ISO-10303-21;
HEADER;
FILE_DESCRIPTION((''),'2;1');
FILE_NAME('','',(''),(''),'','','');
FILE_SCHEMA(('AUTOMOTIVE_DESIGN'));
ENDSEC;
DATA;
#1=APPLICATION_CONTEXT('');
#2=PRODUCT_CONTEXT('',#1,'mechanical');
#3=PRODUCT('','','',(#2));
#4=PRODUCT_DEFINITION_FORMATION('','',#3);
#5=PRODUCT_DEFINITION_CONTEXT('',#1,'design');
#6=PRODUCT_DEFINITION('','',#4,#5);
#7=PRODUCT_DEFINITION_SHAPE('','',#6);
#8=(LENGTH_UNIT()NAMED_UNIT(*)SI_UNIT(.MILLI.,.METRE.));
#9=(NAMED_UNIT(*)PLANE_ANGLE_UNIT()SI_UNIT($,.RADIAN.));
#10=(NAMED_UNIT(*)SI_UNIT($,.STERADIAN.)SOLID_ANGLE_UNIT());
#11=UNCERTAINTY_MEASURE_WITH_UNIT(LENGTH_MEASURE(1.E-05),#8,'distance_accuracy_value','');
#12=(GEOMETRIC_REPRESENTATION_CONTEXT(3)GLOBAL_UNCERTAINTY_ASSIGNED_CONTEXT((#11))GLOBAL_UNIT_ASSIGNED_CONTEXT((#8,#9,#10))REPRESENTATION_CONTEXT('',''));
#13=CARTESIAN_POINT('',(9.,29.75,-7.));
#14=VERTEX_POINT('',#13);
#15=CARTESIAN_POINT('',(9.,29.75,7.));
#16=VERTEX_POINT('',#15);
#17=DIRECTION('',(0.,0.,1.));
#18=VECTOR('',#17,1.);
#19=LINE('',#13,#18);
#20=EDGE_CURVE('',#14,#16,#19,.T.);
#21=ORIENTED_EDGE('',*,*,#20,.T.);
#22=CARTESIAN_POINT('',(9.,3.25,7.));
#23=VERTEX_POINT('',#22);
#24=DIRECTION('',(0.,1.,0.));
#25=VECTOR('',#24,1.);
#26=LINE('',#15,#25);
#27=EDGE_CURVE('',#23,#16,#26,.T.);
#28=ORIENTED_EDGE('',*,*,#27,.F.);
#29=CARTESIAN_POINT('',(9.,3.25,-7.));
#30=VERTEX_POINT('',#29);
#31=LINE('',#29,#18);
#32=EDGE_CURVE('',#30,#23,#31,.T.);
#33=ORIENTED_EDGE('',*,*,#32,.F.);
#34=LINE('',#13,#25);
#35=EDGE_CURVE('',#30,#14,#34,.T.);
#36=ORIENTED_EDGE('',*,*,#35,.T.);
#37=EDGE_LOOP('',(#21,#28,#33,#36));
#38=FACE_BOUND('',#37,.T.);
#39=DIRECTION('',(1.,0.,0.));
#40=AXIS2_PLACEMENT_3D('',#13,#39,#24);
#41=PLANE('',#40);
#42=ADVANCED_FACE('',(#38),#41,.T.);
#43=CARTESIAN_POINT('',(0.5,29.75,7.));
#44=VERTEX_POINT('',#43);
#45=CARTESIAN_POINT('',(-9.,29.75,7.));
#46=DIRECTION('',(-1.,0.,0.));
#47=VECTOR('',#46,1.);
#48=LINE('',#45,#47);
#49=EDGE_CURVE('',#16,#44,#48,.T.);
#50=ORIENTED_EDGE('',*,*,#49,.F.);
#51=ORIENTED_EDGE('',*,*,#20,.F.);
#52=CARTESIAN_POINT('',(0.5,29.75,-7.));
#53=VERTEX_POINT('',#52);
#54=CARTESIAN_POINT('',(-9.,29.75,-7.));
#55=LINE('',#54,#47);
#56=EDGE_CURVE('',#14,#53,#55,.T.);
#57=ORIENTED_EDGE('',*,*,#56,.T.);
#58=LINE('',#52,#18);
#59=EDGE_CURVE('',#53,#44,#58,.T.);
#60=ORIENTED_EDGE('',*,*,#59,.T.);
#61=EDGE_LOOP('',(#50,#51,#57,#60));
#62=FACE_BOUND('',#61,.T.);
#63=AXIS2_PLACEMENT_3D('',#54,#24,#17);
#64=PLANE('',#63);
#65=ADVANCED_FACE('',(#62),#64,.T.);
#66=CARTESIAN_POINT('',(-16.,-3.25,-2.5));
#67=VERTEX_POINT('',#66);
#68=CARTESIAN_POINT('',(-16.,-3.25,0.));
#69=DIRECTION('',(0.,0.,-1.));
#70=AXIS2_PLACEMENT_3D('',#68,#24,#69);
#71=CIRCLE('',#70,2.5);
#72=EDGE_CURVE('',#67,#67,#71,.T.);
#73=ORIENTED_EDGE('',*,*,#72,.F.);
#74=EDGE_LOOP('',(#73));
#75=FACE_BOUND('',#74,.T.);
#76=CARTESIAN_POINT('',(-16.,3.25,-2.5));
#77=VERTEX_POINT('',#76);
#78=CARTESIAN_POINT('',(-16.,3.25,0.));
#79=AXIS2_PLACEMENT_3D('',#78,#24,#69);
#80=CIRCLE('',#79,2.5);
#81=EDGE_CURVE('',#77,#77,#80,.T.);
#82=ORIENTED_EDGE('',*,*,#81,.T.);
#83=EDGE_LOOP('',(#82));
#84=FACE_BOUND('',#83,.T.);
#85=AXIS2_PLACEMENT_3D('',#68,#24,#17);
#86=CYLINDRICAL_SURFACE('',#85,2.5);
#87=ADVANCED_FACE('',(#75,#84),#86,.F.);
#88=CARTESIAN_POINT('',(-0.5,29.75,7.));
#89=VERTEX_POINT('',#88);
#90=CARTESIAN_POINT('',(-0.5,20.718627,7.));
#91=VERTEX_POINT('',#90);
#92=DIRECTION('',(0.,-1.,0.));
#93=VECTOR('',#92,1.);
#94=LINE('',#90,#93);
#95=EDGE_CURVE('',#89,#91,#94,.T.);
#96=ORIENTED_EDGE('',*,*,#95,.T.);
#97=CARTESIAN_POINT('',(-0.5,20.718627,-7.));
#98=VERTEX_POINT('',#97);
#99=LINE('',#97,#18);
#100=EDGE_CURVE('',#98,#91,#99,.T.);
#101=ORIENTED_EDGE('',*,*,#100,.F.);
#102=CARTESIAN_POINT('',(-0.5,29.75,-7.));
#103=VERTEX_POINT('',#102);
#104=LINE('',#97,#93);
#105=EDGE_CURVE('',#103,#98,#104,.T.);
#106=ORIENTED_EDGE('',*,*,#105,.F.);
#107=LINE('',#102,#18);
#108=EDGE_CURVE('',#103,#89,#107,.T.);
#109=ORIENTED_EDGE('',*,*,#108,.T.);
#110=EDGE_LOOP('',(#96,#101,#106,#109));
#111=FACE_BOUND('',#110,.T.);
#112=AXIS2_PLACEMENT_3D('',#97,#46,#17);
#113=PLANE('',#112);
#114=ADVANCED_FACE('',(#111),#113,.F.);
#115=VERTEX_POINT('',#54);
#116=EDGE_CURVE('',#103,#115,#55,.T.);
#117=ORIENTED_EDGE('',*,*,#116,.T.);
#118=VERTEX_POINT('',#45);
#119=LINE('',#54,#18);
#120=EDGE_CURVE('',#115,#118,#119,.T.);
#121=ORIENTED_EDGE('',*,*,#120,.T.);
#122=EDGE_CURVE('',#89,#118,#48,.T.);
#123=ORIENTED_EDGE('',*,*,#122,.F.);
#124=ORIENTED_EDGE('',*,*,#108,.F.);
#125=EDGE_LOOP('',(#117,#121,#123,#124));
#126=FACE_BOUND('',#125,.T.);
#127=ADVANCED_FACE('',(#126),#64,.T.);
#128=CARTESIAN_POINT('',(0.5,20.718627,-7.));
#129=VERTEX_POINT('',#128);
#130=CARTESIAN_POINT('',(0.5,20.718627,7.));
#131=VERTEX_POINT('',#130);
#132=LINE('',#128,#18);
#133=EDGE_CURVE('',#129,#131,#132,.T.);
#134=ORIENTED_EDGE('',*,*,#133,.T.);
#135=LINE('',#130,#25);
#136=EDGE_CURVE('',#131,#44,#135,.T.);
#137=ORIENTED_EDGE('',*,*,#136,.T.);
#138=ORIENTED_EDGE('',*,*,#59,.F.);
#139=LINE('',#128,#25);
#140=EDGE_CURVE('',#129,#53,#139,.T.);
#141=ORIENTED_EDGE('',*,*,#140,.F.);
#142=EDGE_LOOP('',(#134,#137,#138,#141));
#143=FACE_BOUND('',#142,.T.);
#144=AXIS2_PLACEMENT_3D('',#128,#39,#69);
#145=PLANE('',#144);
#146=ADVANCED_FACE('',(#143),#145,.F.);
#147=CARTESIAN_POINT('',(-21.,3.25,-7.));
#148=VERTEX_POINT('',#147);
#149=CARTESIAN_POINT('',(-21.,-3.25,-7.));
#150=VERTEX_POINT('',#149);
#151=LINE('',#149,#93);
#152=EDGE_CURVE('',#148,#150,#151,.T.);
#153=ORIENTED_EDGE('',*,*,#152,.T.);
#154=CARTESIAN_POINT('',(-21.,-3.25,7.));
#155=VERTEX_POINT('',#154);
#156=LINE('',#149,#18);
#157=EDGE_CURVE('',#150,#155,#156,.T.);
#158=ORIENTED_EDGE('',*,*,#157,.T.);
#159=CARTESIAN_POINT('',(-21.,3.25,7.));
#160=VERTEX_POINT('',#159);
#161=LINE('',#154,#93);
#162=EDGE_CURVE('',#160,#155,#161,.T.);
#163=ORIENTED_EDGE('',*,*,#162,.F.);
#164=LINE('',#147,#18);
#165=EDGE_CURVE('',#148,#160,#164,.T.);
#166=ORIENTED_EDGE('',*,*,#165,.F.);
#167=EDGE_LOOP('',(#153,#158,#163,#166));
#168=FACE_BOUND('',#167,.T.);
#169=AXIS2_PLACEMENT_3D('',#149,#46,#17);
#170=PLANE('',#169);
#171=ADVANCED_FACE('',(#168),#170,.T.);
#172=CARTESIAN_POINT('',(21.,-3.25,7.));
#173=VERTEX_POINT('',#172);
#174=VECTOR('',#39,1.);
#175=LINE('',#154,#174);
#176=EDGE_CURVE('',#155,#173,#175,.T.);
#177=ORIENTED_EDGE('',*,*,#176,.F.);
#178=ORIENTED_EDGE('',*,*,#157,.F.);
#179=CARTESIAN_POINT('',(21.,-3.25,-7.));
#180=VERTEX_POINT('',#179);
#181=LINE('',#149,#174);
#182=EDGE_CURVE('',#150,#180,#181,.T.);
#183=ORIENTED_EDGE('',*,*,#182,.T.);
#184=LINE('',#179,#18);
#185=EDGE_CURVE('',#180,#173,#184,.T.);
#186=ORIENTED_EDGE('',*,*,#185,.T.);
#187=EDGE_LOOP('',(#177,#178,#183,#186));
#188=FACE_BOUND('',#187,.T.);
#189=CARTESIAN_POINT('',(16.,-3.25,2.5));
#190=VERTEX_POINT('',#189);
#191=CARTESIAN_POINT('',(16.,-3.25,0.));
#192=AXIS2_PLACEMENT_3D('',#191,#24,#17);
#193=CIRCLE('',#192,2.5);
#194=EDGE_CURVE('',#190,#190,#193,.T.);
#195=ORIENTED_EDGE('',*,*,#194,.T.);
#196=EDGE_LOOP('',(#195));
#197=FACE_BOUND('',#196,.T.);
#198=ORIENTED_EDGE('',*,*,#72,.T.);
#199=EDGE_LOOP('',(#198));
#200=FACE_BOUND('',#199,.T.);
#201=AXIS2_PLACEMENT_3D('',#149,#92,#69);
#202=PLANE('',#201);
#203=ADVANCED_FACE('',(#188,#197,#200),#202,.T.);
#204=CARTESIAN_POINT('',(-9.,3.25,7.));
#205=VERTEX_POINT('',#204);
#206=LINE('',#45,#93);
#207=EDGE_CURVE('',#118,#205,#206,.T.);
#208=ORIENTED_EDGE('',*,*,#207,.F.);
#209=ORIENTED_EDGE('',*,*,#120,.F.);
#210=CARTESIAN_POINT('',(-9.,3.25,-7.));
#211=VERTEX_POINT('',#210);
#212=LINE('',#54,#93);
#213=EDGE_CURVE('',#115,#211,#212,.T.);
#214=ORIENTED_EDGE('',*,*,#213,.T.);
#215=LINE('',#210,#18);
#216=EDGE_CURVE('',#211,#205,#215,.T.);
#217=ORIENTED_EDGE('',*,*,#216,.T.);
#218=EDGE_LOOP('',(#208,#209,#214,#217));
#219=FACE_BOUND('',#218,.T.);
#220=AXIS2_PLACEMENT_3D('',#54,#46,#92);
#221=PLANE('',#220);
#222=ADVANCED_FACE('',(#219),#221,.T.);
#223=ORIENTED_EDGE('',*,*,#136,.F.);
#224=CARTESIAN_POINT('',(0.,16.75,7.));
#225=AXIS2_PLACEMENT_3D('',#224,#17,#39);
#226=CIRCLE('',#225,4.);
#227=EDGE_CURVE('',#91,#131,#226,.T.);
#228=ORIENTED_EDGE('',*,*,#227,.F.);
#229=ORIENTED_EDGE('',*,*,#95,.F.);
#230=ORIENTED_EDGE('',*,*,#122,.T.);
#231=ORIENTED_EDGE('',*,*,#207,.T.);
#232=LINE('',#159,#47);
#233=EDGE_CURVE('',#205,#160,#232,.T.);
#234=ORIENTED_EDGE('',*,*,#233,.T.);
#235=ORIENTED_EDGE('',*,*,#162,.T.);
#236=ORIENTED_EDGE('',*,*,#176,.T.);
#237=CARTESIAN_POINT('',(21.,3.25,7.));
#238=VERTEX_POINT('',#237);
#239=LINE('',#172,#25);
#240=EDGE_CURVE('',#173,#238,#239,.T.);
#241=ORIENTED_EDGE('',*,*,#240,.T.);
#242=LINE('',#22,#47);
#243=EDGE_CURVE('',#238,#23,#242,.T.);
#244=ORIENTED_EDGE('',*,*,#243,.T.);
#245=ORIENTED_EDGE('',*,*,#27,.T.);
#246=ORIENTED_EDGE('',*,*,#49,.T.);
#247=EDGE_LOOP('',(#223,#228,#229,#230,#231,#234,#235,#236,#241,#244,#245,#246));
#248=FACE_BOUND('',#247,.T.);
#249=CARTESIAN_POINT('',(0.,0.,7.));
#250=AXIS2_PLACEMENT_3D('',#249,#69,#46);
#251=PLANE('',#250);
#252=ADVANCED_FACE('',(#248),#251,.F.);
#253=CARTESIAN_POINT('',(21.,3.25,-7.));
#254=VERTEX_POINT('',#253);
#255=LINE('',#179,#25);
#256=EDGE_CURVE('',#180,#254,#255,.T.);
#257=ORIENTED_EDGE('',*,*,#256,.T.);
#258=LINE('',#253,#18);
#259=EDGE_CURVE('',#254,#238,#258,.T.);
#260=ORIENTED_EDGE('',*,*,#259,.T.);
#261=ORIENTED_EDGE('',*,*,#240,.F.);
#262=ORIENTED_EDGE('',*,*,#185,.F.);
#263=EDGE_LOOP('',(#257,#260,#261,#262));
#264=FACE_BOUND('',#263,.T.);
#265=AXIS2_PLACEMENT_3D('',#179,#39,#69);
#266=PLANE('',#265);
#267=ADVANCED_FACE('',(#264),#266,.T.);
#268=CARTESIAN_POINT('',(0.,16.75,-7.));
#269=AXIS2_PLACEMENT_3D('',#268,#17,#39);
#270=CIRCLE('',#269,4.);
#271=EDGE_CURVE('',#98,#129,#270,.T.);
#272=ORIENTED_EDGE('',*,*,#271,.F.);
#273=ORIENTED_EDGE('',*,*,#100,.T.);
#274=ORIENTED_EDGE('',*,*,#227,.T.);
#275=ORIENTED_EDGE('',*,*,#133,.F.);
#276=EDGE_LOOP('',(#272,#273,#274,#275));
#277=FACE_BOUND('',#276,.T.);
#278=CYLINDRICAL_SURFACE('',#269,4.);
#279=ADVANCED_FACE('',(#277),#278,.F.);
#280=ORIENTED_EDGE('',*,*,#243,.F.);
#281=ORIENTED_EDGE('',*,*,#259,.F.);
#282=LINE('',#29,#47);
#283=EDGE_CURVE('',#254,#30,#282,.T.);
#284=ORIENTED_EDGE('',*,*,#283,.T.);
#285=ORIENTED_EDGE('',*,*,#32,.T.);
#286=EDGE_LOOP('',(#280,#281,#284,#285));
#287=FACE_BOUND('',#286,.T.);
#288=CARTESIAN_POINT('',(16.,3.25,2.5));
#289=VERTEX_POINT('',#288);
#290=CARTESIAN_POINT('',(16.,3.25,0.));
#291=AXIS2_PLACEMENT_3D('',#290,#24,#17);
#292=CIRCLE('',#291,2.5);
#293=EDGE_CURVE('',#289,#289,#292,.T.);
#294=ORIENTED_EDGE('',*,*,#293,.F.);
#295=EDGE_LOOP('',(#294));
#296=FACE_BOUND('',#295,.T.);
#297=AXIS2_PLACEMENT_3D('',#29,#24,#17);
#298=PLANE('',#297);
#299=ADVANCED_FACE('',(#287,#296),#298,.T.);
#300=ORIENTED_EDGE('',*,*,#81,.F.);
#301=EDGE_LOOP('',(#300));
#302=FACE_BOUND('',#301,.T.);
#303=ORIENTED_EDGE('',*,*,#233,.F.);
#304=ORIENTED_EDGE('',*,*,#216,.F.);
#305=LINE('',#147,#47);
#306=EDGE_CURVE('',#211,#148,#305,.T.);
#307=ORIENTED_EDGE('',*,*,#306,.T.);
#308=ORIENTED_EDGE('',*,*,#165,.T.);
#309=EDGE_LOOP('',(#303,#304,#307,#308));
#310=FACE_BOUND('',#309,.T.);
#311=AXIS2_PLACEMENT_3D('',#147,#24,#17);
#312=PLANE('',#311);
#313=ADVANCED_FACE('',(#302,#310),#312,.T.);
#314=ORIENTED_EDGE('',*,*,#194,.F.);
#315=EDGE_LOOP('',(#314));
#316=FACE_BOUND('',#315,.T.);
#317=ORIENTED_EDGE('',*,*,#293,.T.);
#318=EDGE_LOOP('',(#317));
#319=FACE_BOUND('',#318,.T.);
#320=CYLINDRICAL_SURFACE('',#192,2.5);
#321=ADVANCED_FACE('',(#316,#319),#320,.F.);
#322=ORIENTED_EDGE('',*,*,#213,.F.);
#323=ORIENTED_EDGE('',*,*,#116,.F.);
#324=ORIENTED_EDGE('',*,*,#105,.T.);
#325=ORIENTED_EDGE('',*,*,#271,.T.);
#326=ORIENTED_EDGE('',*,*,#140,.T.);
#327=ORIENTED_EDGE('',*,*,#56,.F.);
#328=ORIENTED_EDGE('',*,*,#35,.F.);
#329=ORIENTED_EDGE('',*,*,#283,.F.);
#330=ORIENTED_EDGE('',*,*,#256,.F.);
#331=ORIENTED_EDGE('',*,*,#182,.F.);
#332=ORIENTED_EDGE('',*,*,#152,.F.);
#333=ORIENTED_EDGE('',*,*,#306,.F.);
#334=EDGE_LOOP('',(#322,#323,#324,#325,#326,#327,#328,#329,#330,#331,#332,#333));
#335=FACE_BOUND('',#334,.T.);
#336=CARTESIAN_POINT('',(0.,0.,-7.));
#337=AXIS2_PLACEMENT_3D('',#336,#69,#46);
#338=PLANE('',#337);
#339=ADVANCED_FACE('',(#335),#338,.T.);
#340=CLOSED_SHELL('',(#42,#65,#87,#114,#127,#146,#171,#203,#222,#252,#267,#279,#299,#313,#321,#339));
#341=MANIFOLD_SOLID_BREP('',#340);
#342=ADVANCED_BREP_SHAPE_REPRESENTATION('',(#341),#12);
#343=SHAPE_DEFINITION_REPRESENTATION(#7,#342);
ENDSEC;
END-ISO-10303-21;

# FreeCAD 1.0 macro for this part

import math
import FreeCAD as App
import Part
import Sketcher
from FreeCAD import Vector

doc = App.newDocument("Part")
params = doc.addObject("Spreadsheet::Sheet", "Params")
for row, (alias, value) in enumerate([
    ("sketch1_width", "12 mm"),
    ("sketch1_width2", "18 mm"),
    ("sketch1_height", "26.5 mm"),
    ("sketch1_height2", "6.5 mm"),
    ("pad1_length", "7 mm"),
    ("pad1_length2", "7 mm"),
    ("sketch2_radius", "4 mm"),
    ("sketch2_width", "1 mm"),
    ("sketch3_diameter", "5 mm"),
], start=1):
    params.set(f"A{row}", alias)
    params.set(f"B{row}", "=" + value)
    params.setAlias(f"B{row}", alias)

body = doc.addObject("PartDesign::Body", "Body")

# Sketch on XY plane
sketch1 = body.newObject("Sketcher::SketchObject", "Sketch")
sketch1.AttachmentSupport = (doc.getObject("XY_Plane"), [""])
sketch1.MapMode = "FlatFace"
sketch1.addGeometry([
    Part.LineSegment(Vector(21, 3.25, 0), Vector(9, 3.25, 0)),  # 0
    Part.LineSegment(Vector(9, 3.25, 0), Vector(9, 29.75, 0)),  # 1
    Part.LineSegment(Vector(9, 29.75, 0), Vector(-9, 29.75, 0)),  # 2
    Part.LineSegment(Vector(-9, 29.75, 0), Vector(-9, 3.25, 0)),  # 3
    Part.LineSegment(Vector(-9, 3.25, 0), Vector(-21, 3.25, 0)),  # 4
    Part.LineSegment(Vector(-21, 3.25, 0), Vector(-21, -3.25, 0)),  # 5
    Part.LineSegment(Vector(-21, -3.25, 0), Vector(21, -3.25, 0)),  # 6
    Part.LineSegment(Vector(21, -3.25, 0), Vector(21, 3.25, 0)),  # 7
], False)
sketch1.addConstraint([
    Sketcher.Constraint("Coincident", 0, 2, 1, 1),
    Sketcher.Constraint("Coincident", 1, 2, 2, 1),
    Sketcher.Constraint("Coincident", 2, 2, 3, 1),
    Sketcher.Constraint("Coincident", 3, 2, 4, 1),
    Sketcher.Constraint("Coincident", 4, 2, 5, 1),
    Sketcher.Constraint("Coincident", 5, 2, 6, 1),
    Sketcher.Constraint("Coincident", 6, 2, 7, 1),
    Sketcher.Constraint("Coincident", 7, 2, 0, 1),
    Sketcher.Constraint("Horizontal", 0),
    Sketcher.Constraint("Vertical", 1),
    Sketcher.Constraint("Horizontal", 2),
    Sketcher.Constraint("Vertical", 3),
    Sketcher.Constraint("Horizontal", 4),
    Sketcher.Constraint("Vertical", 5),
    Sketcher.Constraint("Horizontal", 6),
    Sketcher.Constraint("Vertical", 7),
    Sketcher.Constraint("Symmetric", 4, 2, 6, 2, -1, 1),
    Sketcher.Constraint("Symmetric", 0, 2, 3, 2, -2),
    Sketcher.Constraint("DistanceX", 0, 2, 0, 1, 12.0),
    Sketcher.Constraint("DistanceX", 2, 2, 2, 1, 18.0),
    Sketcher.Constraint("DistanceY", 1, 1, 1, 2, 26.5),
    Sketcher.Constraint("DistanceY", 5, 2, 5, 1, 6.5),
])
sketch1.setExpression("Constraints[18]", "Params.sketch1_width")
sketch1.setExpression("Constraints[19]", "Params.sketch1_width2")
sketch1.setExpression("Constraints[20]", "Params.sketch1_height")
sketch1.setExpression("Constraints[21]", "Params.sketch1_height2")
pad1 = body.newObject("PartDesign::Pad", "Pad")
pad1.Profile = sketch1
pad1.Type = "TwoLengths"
pad1.setExpression("Length", "Params.pad1_length")
pad1.setExpression("Length2", "Params.pad1_length2")

# Sketch on XY plane
sketch2 = body.newObject("Sketcher::SketchObject", "Sketch001")
sketch2.AttachmentSupport = (doc.getObject("XY_Plane"), [""])
sketch2.MapMode = "FlatFace"
sketch2.AttachmentOffset = App.Placement(Vector(0, 0, 7), App.Rotation())
sketch2.addGeometry([
    Part.LineSegment(Vector(-0.5, 29.75, 0), Vector(-0.5, 20.718627, 0)),
    Part.ArcOfCircle(Part.Circle(Vector(0, 16.75, 0), Vector(0, 0, 1), 4), math.radians(97.180756), math.radians(442.819244)),
    Part.LineSegment(Vector(0.5, 20.718627, 0), Vector(0.5, 29.75, 0)),
    Part.LineSegment(Vector(0.5, 29.75, 0), Vector(-0.5, 29.75, 0)),
], False)
sketch2.addConstraint([
    Sketcher.Constraint("Coincident", 0, 2, 1, 1),
    Sketcher.Constraint("Coincident", 1, 2, 2, 1),
    Sketcher.Constraint("Coincident", 2, 2, 3, 1),
    Sketcher.Constraint("Coincident", 3, 2, 0, 1),
    Sketcher.Constraint("Vertical", 0),
    Sketcher.Constraint("Vertical", 2),
    Sketcher.Constraint("Horizontal", 3),
    Sketcher.Constraint("Symmetric", 0, 2, 1, 2, -2),
    Sketcher.Constraint("Radius", 1, 4.0),
    Sketcher.Constraint("DistanceX", 3, 2, 3, 1, 1.0),
    Sketcher.Constraint("DistanceY", 1, 3, 2, 2, 13.0),
    Sketcher.Constraint("DistanceY", -1, 1, 1, 3, 16.75),
])
sketch2.setExpression("Constraints[8]", "Params.sketch2_radius")
sketch2.setExpression("Constraints[9]", "Params.sketch2_width")
pocket1 = body.newObject("PartDesign::Pocket", "Pocket")
pocket1.Profile = sketch2
pocket1.Type = "ThroughAll"

# Sketch on XZ plane
sketch3 = body.newObject("Sketcher::SketchObject", "Sketch002")
sketch3.AttachmentSupport = (doc.getObject("XZ_Plane"), [""])
sketch3.MapMode = "FlatFace"
sketch3.AttachmentOffset = App.Placement(Vector(0, 0, -3.25), App.Rotation())
sketch3.addGeometry([
    Part.Circle(Vector(16, 0, 0), Vector(0, 0, 1), 2.5),
    Part.Circle(Vector(-16, 0, 0), Vector(0, 0, 1), 2.5),
], False)
sketch3.addConstraint([
    Sketcher.Constraint("Equal", 0, 1),
    Sketcher.Constraint("Symmetric", 0, 3, 1, 3, -1, 1),
    Sketcher.Constraint("PointOnObject", 0, 3, -1),
    Sketcher.Constraint("Diameter", 0, 5.0),
    Sketcher.Constraint("DistanceX", -1, 1, 0, 3, 16.0),
])
sketch3.setExpression("Constraints[3]", "Params.sketch3_diameter")
pocket2 = body.newObject("PartDesign::Pocket", "Pocket001")
pocket2.Profile = sketch3
pocket2.Type = "ThroughAll"
pocket2.Reversed = True

doc.recompute()
